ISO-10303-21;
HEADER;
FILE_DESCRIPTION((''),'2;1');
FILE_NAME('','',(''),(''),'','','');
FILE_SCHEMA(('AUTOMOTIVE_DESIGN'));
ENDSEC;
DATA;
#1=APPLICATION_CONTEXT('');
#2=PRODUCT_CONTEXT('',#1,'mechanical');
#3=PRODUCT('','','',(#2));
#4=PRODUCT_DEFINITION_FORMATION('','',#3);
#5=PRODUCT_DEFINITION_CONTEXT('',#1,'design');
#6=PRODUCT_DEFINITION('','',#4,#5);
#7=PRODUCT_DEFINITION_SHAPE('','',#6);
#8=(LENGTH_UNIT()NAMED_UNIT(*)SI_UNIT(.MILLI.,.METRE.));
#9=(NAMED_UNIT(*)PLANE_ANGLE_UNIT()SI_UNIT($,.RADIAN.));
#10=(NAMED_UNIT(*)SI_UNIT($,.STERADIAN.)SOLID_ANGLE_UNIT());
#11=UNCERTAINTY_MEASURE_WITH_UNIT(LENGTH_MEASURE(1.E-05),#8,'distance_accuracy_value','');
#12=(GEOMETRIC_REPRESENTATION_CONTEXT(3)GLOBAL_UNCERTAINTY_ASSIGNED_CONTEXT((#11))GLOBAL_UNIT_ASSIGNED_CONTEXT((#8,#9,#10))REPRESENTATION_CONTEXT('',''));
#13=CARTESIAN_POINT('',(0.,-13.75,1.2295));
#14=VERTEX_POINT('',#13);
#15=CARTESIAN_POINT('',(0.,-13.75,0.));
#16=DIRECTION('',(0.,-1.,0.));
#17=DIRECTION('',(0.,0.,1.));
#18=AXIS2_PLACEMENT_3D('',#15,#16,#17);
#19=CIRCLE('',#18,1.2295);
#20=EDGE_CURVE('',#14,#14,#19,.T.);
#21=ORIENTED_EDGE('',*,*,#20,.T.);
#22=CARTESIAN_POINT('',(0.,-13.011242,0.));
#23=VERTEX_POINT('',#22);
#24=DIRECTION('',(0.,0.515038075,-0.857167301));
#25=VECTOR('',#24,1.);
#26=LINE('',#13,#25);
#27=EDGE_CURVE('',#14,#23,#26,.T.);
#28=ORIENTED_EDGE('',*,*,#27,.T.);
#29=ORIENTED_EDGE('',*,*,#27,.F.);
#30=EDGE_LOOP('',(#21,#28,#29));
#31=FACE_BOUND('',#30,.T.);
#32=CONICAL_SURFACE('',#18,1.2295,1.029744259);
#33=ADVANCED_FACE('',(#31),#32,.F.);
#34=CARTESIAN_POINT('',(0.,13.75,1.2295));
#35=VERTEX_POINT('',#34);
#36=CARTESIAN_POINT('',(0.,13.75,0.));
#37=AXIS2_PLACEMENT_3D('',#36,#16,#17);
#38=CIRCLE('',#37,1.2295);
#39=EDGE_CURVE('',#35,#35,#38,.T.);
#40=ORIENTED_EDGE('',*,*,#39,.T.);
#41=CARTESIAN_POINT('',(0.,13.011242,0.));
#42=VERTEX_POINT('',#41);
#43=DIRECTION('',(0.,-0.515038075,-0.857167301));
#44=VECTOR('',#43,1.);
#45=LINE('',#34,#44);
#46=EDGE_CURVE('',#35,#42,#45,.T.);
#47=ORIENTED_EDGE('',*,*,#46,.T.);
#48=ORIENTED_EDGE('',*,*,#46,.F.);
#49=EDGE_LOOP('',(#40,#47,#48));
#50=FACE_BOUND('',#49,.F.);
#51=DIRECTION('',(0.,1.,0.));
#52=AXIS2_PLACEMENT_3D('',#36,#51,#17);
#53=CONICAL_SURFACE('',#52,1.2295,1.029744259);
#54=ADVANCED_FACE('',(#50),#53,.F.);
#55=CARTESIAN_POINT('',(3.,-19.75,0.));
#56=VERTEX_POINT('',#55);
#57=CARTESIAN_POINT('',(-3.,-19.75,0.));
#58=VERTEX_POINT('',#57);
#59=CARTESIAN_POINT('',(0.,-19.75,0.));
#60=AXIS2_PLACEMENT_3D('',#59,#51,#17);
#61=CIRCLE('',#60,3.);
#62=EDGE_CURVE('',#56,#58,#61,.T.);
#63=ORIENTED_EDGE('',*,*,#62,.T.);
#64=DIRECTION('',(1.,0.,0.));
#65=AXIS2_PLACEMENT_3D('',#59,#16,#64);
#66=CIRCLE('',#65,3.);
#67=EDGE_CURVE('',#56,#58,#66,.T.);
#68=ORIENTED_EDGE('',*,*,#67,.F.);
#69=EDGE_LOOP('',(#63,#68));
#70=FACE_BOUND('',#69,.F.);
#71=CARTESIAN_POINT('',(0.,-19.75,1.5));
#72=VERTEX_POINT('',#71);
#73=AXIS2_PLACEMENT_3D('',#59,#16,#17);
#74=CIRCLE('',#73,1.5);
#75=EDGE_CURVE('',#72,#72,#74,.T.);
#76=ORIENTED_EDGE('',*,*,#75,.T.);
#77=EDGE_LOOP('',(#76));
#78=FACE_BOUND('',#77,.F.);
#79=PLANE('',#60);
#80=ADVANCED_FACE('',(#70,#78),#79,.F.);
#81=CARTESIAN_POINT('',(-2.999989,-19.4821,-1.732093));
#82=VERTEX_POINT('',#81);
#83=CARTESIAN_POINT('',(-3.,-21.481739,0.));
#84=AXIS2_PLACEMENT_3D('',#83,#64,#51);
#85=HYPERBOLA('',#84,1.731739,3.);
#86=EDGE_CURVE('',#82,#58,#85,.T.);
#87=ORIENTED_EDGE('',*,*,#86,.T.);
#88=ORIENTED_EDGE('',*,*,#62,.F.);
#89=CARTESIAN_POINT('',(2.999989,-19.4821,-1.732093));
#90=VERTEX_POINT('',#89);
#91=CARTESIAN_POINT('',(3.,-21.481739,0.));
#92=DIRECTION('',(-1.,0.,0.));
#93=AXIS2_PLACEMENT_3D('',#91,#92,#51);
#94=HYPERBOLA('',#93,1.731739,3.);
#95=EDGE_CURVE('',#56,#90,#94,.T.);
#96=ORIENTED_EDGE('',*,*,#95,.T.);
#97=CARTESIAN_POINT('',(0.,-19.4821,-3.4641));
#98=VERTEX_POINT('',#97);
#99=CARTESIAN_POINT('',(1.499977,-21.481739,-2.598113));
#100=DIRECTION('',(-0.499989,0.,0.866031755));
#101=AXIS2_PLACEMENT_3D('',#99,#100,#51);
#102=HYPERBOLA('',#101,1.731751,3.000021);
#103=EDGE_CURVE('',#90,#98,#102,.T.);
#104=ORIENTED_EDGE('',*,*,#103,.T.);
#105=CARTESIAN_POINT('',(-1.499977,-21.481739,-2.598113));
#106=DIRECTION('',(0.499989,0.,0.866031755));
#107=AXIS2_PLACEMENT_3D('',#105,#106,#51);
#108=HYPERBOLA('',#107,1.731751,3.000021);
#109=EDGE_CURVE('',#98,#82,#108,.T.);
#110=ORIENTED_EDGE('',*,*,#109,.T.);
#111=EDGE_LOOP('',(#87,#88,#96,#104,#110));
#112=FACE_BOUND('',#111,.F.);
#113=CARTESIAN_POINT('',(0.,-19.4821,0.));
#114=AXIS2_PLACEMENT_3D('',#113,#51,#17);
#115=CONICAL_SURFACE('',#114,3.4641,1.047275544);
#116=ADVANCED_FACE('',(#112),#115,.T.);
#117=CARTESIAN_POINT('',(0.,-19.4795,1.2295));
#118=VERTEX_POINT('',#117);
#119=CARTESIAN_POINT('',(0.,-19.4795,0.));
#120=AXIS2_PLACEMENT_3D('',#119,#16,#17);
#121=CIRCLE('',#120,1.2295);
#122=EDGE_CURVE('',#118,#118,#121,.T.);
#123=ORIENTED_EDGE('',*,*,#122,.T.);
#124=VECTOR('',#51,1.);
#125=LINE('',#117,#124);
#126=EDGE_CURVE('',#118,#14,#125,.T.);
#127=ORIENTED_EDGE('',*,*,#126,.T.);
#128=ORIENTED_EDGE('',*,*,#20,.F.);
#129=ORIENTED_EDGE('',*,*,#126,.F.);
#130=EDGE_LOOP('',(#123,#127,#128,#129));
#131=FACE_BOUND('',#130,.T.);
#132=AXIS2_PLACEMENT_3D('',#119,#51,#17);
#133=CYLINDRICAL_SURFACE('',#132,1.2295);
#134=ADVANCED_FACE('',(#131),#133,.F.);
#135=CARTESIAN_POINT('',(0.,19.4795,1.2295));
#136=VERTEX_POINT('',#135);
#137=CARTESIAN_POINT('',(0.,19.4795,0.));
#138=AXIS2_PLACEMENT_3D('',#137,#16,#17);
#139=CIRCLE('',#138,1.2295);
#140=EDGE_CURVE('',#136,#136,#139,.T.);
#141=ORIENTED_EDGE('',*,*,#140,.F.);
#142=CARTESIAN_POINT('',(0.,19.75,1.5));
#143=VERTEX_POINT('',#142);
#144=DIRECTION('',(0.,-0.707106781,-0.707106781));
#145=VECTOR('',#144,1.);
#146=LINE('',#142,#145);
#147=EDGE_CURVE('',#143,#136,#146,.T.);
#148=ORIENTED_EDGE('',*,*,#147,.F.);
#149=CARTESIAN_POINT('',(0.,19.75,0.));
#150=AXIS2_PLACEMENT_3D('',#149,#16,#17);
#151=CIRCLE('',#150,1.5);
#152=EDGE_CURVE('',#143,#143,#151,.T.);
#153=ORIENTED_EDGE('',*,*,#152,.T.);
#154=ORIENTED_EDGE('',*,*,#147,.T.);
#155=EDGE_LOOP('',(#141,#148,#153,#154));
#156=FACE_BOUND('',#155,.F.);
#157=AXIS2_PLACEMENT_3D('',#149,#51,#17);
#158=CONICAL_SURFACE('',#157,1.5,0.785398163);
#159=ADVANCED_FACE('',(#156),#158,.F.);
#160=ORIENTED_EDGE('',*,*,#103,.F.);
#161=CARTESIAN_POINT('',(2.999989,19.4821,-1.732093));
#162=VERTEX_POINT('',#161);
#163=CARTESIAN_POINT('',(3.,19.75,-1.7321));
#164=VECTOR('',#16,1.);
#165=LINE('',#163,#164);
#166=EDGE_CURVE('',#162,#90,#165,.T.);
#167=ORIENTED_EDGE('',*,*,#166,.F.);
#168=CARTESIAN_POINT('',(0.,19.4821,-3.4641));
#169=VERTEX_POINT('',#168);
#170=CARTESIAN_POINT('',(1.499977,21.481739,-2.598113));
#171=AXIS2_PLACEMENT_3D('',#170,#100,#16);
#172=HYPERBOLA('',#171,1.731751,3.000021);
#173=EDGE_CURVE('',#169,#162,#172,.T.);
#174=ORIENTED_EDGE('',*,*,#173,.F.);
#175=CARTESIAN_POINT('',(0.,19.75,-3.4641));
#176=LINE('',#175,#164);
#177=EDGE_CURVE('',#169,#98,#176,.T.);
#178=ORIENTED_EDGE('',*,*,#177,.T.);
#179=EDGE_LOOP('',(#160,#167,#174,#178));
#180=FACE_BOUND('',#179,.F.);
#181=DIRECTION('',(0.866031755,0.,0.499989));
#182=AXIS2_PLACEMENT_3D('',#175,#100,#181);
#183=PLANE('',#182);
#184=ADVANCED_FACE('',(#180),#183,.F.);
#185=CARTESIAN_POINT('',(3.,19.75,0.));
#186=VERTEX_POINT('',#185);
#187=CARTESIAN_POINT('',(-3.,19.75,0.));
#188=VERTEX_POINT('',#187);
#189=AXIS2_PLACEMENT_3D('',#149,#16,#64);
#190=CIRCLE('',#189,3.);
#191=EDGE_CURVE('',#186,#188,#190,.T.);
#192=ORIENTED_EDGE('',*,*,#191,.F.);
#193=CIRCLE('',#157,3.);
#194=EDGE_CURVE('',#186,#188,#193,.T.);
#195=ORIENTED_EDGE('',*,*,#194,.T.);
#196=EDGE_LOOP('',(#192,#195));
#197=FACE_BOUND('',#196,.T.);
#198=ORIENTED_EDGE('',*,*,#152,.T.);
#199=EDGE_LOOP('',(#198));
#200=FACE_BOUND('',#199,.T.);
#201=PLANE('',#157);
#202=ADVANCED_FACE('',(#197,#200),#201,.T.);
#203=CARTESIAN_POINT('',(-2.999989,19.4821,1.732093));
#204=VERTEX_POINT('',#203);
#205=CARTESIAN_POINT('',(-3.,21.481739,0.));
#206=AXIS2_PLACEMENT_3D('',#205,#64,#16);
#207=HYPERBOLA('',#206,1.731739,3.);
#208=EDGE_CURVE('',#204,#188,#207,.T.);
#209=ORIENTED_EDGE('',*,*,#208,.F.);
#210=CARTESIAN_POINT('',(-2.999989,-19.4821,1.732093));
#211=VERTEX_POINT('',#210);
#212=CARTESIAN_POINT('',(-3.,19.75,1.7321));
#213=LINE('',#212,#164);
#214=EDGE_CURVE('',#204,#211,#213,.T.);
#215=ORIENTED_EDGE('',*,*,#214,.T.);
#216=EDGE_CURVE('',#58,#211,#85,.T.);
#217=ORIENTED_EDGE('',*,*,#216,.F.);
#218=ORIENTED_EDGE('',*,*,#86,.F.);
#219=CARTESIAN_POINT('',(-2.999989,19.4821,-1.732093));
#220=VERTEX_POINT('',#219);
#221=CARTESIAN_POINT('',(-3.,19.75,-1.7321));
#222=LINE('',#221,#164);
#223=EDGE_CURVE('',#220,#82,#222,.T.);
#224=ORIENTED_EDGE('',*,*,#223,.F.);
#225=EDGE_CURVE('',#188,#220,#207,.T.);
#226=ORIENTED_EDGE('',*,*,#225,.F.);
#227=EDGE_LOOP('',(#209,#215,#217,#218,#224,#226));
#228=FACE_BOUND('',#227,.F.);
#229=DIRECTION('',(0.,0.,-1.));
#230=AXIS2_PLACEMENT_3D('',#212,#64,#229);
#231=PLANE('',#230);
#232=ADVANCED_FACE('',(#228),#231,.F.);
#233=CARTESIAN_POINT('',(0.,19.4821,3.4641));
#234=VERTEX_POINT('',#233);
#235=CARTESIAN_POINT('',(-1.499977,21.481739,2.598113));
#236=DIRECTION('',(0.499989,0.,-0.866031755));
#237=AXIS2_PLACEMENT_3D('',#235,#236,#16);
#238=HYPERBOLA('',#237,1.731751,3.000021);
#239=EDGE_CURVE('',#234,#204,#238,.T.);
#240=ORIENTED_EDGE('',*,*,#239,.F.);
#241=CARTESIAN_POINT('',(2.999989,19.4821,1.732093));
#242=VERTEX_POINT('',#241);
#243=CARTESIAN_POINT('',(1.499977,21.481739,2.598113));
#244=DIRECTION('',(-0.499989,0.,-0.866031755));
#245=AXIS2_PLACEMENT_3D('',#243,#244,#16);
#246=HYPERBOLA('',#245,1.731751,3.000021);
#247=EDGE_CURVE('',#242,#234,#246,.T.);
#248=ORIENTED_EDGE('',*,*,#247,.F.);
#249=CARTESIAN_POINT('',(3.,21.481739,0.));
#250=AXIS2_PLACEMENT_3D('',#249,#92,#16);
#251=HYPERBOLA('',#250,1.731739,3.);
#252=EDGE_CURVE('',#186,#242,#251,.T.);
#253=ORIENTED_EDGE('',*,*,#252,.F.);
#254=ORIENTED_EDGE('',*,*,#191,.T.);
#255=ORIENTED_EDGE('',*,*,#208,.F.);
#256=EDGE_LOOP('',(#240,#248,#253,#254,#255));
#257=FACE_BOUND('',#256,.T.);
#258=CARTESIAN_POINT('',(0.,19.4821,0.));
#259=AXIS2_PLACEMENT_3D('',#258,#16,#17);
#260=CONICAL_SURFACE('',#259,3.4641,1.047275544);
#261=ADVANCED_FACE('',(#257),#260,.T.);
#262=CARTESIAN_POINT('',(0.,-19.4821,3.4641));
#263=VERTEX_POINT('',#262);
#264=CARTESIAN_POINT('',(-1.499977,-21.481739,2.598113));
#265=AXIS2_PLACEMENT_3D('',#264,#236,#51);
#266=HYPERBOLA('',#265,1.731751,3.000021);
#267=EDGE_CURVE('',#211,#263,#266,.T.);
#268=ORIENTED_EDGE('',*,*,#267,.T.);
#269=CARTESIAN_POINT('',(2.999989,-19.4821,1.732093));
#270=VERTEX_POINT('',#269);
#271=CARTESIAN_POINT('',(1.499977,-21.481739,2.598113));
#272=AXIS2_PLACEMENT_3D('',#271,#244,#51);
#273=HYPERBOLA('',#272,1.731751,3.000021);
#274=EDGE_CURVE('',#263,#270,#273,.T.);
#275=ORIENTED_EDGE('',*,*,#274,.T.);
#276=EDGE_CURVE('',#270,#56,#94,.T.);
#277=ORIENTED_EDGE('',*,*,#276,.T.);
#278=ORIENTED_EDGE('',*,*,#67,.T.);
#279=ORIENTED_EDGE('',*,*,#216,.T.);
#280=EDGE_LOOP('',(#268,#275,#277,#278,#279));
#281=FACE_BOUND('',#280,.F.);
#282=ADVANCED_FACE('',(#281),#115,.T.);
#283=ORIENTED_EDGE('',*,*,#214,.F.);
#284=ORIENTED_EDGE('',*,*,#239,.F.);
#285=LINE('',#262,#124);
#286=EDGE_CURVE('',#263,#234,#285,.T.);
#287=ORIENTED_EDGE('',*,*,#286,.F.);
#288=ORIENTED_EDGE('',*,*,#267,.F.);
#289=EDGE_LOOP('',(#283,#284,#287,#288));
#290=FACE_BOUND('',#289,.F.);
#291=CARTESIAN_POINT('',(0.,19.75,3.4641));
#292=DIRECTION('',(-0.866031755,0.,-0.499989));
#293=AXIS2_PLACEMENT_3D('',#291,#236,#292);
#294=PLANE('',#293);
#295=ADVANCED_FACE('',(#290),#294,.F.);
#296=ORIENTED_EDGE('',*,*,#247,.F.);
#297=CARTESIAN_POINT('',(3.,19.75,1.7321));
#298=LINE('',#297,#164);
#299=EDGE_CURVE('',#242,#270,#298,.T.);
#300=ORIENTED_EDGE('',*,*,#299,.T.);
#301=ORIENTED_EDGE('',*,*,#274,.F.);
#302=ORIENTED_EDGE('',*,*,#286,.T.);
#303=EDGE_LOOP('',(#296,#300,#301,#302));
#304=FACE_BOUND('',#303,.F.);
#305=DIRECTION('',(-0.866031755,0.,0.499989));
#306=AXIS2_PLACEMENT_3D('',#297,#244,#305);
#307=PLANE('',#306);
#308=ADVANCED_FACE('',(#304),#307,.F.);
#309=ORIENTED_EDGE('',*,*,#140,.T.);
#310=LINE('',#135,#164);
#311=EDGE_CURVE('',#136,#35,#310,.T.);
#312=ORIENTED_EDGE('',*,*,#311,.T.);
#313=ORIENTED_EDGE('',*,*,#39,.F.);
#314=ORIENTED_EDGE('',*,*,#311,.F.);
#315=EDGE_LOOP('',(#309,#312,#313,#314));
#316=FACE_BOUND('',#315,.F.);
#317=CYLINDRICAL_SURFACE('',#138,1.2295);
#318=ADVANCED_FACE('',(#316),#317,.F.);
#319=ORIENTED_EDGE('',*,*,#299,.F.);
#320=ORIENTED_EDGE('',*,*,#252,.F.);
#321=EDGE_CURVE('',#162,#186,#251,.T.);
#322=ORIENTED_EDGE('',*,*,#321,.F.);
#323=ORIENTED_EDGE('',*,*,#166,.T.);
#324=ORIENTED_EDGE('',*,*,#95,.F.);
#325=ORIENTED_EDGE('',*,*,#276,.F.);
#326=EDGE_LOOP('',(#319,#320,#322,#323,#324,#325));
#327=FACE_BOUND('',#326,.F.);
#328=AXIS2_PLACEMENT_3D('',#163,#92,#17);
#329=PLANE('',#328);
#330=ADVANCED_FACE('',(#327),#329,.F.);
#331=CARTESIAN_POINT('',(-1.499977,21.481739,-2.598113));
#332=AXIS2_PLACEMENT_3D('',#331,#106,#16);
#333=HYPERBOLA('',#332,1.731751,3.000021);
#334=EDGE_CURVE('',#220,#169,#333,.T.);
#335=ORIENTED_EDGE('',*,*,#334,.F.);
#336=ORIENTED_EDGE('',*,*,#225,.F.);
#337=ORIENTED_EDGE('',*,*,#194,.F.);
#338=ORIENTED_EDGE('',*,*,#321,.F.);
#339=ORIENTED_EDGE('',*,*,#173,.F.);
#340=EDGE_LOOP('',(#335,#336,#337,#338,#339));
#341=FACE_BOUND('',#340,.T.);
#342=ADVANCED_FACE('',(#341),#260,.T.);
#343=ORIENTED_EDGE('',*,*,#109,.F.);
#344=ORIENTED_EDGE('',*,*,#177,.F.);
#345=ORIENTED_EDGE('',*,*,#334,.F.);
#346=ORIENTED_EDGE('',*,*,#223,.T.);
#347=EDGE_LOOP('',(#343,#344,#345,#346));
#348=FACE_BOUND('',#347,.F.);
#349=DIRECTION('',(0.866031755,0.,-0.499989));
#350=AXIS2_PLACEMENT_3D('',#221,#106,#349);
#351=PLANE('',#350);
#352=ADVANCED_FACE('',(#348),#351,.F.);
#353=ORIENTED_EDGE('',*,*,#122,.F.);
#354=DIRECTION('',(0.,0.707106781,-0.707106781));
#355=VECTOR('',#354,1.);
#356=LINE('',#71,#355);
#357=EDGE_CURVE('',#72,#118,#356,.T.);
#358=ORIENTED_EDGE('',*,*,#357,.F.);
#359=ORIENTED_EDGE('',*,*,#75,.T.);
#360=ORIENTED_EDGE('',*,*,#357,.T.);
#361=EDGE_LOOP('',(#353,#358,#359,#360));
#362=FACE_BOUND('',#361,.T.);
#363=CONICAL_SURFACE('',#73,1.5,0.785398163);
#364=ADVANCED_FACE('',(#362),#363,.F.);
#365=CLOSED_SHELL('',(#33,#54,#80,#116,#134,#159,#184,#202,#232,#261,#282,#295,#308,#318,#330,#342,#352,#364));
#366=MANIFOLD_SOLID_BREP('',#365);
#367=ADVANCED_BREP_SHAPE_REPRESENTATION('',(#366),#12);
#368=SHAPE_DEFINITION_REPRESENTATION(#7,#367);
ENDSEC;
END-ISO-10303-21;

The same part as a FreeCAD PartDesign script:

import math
import FreeCAD as App
import Part
import Sketcher
Q = App.Units.Quantity


def add_polygon(sketch, points):
    """Adds a closed chain of lines whose ends are joined by coincident constraints."""
    first, n = sketch.GeometryCount, len(points)
    for a, b in zip(points, points[1:] + points[:1]):
        sketch.addGeometry(Part.LineSegment(App.Vector(*a, 0), App.Vector(*b, 0)), False)
    for i in range(n):
        sketch.addConstraint(Sketcher.Constraint("Coincident", first + i, 2, first + (i + 1) % n, 1))

doc = App.newDocument("Part")
body = doc.addObject("PartDesign::Body", "Body")

sketch1 = doc.addObject("Sketcher::SketchObject", "Sketch")
body.addObject(sketch1)
sketch1.AttachmentSupport = (doc.YZ_Plane, [""])
sketch1.MapMode = "FlatFace"
add_polygon(sketch1, [(-19.8, 3), (-19.8, 0), (19.8, 0), (19.8, 3), (19.5, 3.5), (-19.5, 3.5)])
sketch1.addConstraint([
    Sketcher.Constraint("Vertical", 0),
    Sketcher.Constraint("Horizontal", 1),
    Sketcher.Constraint("Vertical", 2),
    Sketcher.Constraint("Horizontal", 4),
    Sketcher.Constraint("Symmetric", 0, 2, 1, 2, -1, 1),
    Sketcher.Constraint("Horizontal", 2, 2, 5, 2),
    Sketcher.Constraint("Equal", 3, 5),
    Sketcher.Constraint("DistanceY", 0, 2, 0, 1, 3.0),
    Sketcher.Constraint("DistanceX", 1, 1, 1, 2, 39.5),
    Sketcher.Constraint("DistanceY", -1, 1, 3, 2, 3.464),
    Sketcher.Constraint("DistanceX", 4, 2, 4, 1, 38.9642),
])
revolution = doc.addObject("PartDesign::Revolution", "Revolution")
body.addObject(revolution)
revolution.Profile = sketch1
revolution.ReferenceAxis = (sketch1, ["H_Axis"])
revolution.Angle = 360

sketch2 = doc.addObject("Sketcher::SketchObject", "Sketch001")
body.addObject(sketch2)
sketch2.AttachmentSupport = (doc.XZ_Plane, [""])
sketch2.MapMode = "FlatFace"
sketch2.AttachmentOffset = App.Placement(App.Vector(0, 0, -19.75), App.Rotation())
sketch2.addGeometry([
    Part.ArcOfCircle(Part.Circle(App.Vector(0, 0, 0), App.Vector(0, 0, 1), 3.5), math.radians(-30), math.radians(30)),
    Part.LineSegment(App.Vector(3, 1.7, 0), App.Vector(3, -1.7, 0)),
    Part.LineSegment(App.Vector(0, -3.5, 0), App.Vector(3, -1.7, 0)),
    Part.ArcOfCircle(Part.Circle(App.Vector(0, 0, 0), App.Vector(0, 0, 1), 3.5), math.radians(-90), math.radians(-30)),
    Part.ArcOfCircle(Part.Circle(App.Vector(0, 0, 0), App.Vector(0, 0, 1), 3.5), math.radians(30), math.radians(90)),
    Part.LineSegment(App.Vector(0, 3.5, 0), App.Vector(3, 1.7, 0)),
    Part.LineSegment(App.Vector(-3, -1.7, 0), App.Vector(0, -3.5, 0)),
    Part.ArcOfCircle(Part.Circle(App.Vector(0, 0, 0), App.Vector(0, 0, 1), 3.5), math.radians(-150), math.radians(-90)),
    Part.ArcOfCircle(Part.Circle(App.Vector(0, 0, 0), App.Vector(0, 0, 1), 3.5), math.radians(90), math.radians(150)),
    Part.LineSegment(App.Vector(0, 3.5, 0), App.Vector(-3, 1.7, 0)),
    Part.LineSegment(App.Vector(-3, 1.7, 0), App.Vector(-3, -1.7, 0)),
    Part.ArcOfCircle(Part.Circle(App.Vector(0, 0, 0), App.Vector(0, 0, 1), 3.5), math.radians(150), math.radians(210)),
], False)
sketch2.addConstraint([
    Sketcher.Constraint("Coincident", 0, 1, 1, 2),
    Sketcher.Constraint("Coincident", 1, 1, 0, 2),
    Sketcher.Constraint("Coincident", 2, 1, 3, 1),
    Sketcher.Constraint("Coincident", 3, 2, 2, 2),
    Sketcher.Constraint("Coincident", 4, 1, 5, 2),
    Sketcher.Constraint("Coincident", 5, 1, 4, 2),
    Sketcher.Constraint("Coincident", 6, 1, 7, 1),
    Sketcher.Constraint("Coincident", 7, 2, 6, 2),
    Sketcher.Constraint("Coincident", 8, 1, 9, 1),
    Sketcher.Constraint("Coincident", 9, 2, 8, 2),
    Sketcher.Constraint("Coincident", 10, 1, 11, 1),
    Sketcher.Constraint("Coincident", 11, 2, 10, 2),
    Sketcher.Constraint("Vertical", 1),
    Sketcher.Constraint("Vertical", 10),
    Sketcher.Constraint("Coincident", 0, 3, -1, 1),
    Sketcher.Constraint("Coincident", 3, 3, -1, 1),
    Sketcher.Constraint("Coincident", 4, 3, -1, 1),
    Sketcher.Constraint("Coincident", 7, 3, -1, 1),
    Sketcher.Constraint("Coincident", 8, 3, -1, 1),
    Sketcher.Constraint("Coincident", 11, 3, -1, 1),
    Sketcher.Constraint("Coincident", 3, 2, 0, 1),
    Sketcher.Constraint("Coincident", 4, 1, 1, 1),
    Sketcher.Constraint("Coincident", 7, 2, 2, 1),
    Sketcher.Constraint("Coincident", 8, 1, 5, 1),
    Sketcher.Constraint("Coincident", 10, 1, 9, 2),
    Sketcher.Constraint("PointOnObject", 2, 1, -2),
    Sketcher.Constraint("PointOnObject", 5, 1, -2),
    Sketcher.Constraint("Parallel", 5, 6),
    Sketcher.Constraint("Parallel", 2, 9),
    Sketcher.Constraint("Angle", 2, Q("29.9993 deg")),
    Sketcher.Constraint("DistanceX", -1, 1, 0, 1, 3.0),
])
pocket1 = doc.addObject("PartDesign::Pocket", "Pocket")
body.addObject(pocket1)
pocket1.Profile = sketch2
pocket1.Type = "ThroughAll"
pocket1.Reversed = True

sketch3 = doc.addObject("Sketcher::SketchObject", "Sketch002")
body.addObject(sketch3)
sketch3.AttachmentSupport = (doc.XZ_Plane, [""])
sketch3.MapMode = "FlatFace"
sketch3.AttachmentOffset = App.Placement(App.Vector(0, 0, -19.75), App.Rotation())
sketch3.addGeometry(Part.Circle(App.Vector(0, 0, 0), App.Vector(0, 0, 1), 1.2), False)
sketch3.addConstraint([
    Sketcher.Constraint("Coincident", 0, 3, -1, 1),
    Sketcher.Constraint("Diameter", 0, 2.459),
])
doc.recompute()
hole = doc.addObject("PartDesign::Hole", "Hole")
body.addObject(hole)
hole.Profile = sketch3
hole.ThreadType = "None"
hole.Diameter = 2.459
hole.DepthType = "Dimension"
hole.Depth = 6
hole.DrillPoint = "Angled"
hole.DrillPointAngle = 118
hole.HoleCutType = "Countersink"
hole.HoleCutDiameter = 3
hole.HoleCutCountersinkAngle = 90
hole.Reversed = True
doc.recompute()

mirrored = doc.addObject("PartDesign::Mirrored", "Mirrored")
body.addObject(mirrored)
mirrored.Originals = [hole]
mirrored.MirrorPlane = (doc.XZ_Plane, [""])
body.Tip = mirrored

doc.recompute()
